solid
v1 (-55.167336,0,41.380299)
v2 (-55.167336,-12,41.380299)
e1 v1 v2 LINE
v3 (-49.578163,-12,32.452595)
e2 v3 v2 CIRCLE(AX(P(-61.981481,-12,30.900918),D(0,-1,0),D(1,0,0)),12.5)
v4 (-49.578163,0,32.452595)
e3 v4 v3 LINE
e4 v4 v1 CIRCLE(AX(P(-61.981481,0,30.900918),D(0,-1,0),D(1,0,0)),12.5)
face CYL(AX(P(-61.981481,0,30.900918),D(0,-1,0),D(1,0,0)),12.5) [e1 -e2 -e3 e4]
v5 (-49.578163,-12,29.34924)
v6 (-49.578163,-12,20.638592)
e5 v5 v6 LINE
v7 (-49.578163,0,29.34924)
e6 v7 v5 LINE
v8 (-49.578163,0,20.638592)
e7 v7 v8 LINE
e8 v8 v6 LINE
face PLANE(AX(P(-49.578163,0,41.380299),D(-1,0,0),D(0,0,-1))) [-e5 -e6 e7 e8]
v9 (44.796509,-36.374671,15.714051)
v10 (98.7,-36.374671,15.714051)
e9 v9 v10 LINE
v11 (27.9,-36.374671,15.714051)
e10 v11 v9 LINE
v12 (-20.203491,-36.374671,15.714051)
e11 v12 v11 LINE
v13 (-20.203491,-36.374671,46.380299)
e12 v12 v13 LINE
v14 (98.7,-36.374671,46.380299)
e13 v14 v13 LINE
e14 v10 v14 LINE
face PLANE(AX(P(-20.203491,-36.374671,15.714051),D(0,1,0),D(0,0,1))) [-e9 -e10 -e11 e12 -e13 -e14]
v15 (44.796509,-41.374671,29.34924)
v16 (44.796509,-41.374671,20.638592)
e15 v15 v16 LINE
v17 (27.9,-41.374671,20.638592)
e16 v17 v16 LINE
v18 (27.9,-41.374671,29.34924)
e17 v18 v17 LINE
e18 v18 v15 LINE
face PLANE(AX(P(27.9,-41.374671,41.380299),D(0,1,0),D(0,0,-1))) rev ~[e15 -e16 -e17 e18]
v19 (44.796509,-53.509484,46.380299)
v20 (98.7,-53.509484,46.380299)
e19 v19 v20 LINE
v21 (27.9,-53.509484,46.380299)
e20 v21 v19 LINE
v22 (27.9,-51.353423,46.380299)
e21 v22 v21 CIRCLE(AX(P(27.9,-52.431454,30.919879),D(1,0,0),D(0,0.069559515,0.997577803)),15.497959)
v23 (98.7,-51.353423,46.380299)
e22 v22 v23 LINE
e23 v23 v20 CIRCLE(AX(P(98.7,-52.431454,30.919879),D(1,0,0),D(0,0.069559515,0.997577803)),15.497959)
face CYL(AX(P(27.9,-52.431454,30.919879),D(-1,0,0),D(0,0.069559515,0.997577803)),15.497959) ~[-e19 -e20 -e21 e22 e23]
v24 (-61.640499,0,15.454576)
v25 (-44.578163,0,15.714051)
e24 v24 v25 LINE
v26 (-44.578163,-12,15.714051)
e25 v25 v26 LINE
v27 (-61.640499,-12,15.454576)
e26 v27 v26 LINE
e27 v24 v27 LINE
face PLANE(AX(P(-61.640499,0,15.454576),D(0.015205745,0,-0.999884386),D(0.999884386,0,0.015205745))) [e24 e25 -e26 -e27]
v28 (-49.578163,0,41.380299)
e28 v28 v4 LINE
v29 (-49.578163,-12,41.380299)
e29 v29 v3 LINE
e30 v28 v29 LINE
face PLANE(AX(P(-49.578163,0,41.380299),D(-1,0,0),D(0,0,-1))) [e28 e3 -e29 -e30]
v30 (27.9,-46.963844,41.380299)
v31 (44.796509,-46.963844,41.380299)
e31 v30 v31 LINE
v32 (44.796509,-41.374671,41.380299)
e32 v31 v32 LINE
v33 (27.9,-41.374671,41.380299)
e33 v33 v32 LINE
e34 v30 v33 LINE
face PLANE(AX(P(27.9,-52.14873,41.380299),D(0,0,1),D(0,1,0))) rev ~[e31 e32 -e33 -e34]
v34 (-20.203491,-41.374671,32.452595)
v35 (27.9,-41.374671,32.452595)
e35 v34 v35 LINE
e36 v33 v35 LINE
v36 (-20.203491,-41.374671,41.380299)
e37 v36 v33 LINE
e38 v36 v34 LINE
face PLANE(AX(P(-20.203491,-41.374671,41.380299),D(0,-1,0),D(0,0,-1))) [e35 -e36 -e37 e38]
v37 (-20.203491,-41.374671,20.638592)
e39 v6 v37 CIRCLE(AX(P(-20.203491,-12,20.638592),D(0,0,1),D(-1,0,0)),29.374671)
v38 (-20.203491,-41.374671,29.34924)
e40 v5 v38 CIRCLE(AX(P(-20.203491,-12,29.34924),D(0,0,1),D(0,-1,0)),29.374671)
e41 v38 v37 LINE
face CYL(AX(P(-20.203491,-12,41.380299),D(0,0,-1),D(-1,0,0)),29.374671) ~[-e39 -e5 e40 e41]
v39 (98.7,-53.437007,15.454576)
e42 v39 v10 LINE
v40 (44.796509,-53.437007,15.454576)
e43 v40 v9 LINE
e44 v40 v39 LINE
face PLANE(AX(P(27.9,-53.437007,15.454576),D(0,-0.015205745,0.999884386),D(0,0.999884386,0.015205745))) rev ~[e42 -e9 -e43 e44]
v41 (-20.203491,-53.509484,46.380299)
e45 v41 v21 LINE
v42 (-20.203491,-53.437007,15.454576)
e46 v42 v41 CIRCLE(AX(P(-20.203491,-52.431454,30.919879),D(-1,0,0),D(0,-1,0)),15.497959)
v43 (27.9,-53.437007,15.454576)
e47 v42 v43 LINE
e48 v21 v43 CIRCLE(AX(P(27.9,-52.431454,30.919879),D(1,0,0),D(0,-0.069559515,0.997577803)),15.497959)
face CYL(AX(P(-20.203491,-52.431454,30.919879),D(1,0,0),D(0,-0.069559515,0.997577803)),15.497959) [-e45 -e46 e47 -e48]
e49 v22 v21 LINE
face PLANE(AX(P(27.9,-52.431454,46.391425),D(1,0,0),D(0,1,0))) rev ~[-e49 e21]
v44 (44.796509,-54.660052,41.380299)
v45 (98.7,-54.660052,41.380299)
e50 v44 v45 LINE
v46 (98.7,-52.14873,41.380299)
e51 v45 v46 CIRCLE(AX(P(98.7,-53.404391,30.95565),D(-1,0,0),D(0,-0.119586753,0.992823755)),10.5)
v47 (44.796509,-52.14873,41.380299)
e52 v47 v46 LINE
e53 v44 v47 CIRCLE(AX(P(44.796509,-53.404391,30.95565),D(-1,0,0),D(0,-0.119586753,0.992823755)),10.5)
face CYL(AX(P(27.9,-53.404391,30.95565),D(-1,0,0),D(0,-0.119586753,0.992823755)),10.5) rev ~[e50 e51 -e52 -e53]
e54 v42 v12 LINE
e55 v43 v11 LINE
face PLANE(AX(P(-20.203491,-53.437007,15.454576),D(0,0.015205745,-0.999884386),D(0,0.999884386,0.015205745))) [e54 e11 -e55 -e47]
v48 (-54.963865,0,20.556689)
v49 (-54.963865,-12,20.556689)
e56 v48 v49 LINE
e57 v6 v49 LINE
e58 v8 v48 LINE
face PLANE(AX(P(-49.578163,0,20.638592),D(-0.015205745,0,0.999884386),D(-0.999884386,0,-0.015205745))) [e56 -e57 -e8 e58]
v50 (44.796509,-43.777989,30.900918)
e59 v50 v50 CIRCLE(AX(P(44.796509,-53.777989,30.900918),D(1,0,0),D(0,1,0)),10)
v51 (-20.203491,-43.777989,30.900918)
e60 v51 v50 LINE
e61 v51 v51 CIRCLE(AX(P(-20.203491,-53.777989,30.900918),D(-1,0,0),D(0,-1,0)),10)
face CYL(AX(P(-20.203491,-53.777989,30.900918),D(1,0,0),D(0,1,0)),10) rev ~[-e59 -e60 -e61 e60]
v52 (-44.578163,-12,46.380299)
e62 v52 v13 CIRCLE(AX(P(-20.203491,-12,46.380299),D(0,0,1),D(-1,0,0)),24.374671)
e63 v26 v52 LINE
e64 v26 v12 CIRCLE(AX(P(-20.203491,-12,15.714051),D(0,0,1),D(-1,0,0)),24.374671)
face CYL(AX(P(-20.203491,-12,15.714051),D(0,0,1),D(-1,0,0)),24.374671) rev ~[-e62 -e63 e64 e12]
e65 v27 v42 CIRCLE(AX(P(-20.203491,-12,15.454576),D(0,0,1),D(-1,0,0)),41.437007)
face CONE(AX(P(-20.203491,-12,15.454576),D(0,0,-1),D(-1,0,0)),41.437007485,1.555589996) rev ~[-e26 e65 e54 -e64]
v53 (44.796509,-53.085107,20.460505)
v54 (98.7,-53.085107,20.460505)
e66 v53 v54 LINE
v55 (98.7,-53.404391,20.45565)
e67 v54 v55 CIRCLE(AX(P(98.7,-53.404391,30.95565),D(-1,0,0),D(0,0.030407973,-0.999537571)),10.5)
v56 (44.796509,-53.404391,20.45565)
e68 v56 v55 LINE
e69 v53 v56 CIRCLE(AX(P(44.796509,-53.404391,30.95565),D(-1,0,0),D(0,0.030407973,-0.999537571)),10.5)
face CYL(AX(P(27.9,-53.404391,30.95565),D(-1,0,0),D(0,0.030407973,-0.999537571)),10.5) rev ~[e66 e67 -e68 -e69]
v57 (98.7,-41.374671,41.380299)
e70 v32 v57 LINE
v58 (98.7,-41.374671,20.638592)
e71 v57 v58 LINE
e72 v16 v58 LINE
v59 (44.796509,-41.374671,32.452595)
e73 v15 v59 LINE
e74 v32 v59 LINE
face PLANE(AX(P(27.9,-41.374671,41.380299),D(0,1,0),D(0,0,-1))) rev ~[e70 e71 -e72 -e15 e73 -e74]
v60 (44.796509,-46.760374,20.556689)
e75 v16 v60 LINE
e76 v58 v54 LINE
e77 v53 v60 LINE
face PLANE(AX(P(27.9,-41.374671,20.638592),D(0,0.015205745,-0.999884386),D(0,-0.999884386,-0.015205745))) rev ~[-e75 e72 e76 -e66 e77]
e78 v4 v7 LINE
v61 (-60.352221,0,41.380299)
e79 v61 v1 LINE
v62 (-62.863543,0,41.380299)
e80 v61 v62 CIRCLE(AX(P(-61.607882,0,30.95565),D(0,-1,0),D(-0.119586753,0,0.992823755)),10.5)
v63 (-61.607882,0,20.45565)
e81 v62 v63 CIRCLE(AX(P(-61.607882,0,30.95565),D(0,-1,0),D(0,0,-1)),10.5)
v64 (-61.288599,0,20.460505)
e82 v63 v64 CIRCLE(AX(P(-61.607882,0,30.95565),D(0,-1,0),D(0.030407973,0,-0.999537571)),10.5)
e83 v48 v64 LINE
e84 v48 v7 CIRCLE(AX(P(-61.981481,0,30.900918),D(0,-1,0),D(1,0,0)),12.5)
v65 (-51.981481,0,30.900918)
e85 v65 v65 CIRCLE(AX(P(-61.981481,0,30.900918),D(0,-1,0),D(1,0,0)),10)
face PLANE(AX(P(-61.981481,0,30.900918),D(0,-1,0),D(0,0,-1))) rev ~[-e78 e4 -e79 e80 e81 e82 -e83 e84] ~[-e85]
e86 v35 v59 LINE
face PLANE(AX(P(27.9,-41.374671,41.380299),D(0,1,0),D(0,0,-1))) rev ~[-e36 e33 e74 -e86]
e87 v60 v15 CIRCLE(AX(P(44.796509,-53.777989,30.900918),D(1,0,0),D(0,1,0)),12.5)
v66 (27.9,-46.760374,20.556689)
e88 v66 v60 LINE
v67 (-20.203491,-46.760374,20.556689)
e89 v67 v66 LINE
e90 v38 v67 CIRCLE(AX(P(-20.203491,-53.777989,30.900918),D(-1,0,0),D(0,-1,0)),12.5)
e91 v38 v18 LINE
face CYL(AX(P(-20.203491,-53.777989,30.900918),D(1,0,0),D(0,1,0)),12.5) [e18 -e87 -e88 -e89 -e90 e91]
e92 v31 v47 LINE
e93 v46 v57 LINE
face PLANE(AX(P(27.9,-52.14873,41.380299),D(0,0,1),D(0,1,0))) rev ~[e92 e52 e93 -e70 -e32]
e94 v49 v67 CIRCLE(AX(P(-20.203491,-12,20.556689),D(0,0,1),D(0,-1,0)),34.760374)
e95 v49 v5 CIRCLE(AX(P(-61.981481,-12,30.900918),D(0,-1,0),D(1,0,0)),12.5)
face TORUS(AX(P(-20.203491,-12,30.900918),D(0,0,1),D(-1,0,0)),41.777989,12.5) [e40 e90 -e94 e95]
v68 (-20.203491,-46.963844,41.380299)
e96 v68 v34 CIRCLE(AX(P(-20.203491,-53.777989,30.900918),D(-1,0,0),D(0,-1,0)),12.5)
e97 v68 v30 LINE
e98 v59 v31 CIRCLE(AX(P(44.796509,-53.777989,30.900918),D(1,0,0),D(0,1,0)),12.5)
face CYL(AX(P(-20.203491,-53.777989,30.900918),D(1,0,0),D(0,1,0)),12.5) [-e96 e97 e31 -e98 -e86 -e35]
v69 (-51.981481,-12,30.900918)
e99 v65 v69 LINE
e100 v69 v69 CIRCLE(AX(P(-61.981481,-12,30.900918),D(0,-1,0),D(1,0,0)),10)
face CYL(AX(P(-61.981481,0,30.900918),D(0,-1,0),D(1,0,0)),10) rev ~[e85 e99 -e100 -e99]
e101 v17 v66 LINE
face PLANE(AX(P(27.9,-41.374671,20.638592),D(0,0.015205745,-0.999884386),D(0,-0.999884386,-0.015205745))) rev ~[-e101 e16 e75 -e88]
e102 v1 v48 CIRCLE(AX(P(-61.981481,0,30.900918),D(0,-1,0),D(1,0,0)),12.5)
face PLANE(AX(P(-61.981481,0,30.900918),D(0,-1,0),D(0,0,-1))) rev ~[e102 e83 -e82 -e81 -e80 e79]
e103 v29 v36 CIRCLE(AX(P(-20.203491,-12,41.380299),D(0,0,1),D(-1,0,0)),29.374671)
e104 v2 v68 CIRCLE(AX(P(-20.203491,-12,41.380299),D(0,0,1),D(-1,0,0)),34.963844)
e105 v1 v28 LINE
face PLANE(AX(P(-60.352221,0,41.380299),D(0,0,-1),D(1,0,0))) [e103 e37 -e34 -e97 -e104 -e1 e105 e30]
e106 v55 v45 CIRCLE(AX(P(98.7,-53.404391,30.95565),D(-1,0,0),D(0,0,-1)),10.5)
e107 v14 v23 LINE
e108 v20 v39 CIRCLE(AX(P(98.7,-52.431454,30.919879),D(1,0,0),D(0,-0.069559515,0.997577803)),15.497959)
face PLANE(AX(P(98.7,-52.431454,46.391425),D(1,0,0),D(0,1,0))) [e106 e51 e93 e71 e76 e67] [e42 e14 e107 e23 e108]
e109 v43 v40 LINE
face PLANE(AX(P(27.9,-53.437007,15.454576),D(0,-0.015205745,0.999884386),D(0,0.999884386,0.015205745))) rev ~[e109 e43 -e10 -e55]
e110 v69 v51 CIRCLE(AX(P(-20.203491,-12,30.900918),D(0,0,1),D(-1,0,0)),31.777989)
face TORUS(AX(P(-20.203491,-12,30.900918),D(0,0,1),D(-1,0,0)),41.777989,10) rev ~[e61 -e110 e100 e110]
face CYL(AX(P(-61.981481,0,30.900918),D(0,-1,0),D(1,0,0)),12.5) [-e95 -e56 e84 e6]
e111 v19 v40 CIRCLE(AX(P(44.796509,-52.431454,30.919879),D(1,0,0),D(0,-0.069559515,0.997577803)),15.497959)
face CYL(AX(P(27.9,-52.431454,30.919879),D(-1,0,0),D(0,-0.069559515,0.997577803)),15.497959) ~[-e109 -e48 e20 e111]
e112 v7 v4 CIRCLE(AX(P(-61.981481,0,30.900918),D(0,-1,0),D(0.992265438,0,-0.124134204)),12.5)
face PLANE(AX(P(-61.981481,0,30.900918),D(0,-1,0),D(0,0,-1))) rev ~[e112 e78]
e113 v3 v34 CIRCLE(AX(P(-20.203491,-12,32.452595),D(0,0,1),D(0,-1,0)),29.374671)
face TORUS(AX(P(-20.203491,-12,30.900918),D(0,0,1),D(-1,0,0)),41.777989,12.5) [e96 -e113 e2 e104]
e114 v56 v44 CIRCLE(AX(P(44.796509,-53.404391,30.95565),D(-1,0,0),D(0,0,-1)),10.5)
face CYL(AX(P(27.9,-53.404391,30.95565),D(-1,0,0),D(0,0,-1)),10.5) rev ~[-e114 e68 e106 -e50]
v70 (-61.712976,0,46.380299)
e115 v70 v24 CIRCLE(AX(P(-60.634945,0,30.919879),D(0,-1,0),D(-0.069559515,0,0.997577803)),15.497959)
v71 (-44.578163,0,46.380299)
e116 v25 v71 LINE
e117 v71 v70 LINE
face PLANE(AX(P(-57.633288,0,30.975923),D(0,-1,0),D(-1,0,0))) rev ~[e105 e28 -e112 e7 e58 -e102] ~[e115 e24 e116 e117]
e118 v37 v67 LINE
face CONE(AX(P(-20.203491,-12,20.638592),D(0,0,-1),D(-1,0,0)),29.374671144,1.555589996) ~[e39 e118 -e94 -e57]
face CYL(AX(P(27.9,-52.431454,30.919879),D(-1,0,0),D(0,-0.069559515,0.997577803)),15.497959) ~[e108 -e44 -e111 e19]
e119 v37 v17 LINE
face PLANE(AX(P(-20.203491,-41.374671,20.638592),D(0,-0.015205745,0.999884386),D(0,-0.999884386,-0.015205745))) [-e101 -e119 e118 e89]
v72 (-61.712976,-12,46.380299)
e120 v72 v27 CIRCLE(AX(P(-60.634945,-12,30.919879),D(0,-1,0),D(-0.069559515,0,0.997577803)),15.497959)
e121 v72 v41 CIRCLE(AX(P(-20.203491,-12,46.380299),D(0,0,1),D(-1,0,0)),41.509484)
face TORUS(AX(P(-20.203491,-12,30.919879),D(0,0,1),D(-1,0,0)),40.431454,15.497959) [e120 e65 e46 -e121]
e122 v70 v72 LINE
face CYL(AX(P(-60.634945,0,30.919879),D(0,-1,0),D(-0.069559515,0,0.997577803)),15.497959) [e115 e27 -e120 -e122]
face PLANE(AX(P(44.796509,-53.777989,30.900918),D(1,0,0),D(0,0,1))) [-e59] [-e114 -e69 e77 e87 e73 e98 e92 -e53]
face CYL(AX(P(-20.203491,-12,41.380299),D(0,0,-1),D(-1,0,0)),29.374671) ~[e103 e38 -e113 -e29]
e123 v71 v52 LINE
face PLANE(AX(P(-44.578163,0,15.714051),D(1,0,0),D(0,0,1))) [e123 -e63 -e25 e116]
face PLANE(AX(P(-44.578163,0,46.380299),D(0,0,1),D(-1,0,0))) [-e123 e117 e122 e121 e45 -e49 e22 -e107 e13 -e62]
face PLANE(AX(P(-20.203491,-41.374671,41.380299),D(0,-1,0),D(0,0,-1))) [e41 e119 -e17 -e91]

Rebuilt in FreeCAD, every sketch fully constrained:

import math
import FreeCAD as App
import Part
import Sketcher

V = App.Vector


def faces_at(feature, points):
    """Names of the faces that lie closest to the given points."""
    faces = feature.Shape.Faces
    near = lambda p: min(range(len(faces)), key=lambda i: faces[i].distToShape(Part.Vertex(*p))[0])
    return sorted({f"Face{near(p) + 1}" for p in points})

doc = App.newDocument("Part")
body = doc.addObject("PartDesign::Body", "Body")

sketch1 = doc.addObject("Sketcher::SketchObject", "Sketch")
body.addObject(sketch1)
sketch1.AttachmentSupport = (doc.XZ_Plane, [""])
sketch1.MapMode = "FlatFace"
sketch1.addGeometry(Part.Circle(V(-62, 31, 0), V(0, 0, 1), 12), False)
sketch1.addConstraint(Sketcher.Constraint("Diameter", 0, 25.0))
sketch1.addConstraint(Sketcher.Constraint("DistanceX", 0, 3, -1, 1, 61.981481))
sketch1.addConstraint(Sketcher.Constraint("DistanceY", -1, 1, 0, 3, 30.900918))

sketch2 = doc.addObject("Sketcher::SketchObject", "Sketch001")
body.addObject(sketch2)
sketch2.AttachmentSupport = (doc.XY_Plane, [""])
sketch2.MapMode = "FlatFace"
sketch2.addGeometry(Part.LineSegment(V(-30, 0, 0), V(-30, -12, 0)), False)
sketch2.addGeometry(Part.ArcOfCircle(Part.Circle(V(-20, -12, 0), V(0, 0, 1), 10), math.radians(180), math.radians(270)), False)
sketch2.addGeometry(Part.LineSegment(V(-20, -22, 0), V(45, -22, 0)), False)
sketch2.addConstraint(Sketcher.Constraint("Tangent", 0, 2, 1, 1))
sketch2.addConstraint(Sketcher.Constraint("Tangent", 1, 2, 2, 1))
sketch2.addConstraint(Sketcher.Constraint("Vertical", 0))
sketch2.addConstraint(Sketcher.Constraint("Horizontal", 2))
sketch2.addConstraint(Sketcher.Constraint("PointOnObject", 0, 1, -1))
sketch2.addConstraint(Sketcher.Constraint("Radius", 1, 10.0))
sketch2.addConstraint(Sketcher.Constraint("DistanceX", 2, 1, 2, 2, 65.0))
sketch2.addConstraint(Sketcher.Constraint("DistanceY", 0, 2, 0, 1, 12.0))
sketch2.addConstraint(Sketcher.Constraint("DistanceX", 1, 3, -1, 1, 20.203491))
doc.recompute()

additivepipe = doc.addObject("PartDesign::AdditivePipe", "AdditivePipe")
body.addObject(additivepipe)
additivepipe.Profile = sketch1
additivepipe.Spine = (sketch2, ["Edge1", "Edge2", "Edge3"])
doc.recompute()

thickness = doc.addObject("PartDesign::Thickness", "Thickness")
body.addObject(thickness)
thickness.Base = (additivepipe, faces_at(additivepipe, [(44.797, -53.778, 30.901), (-61.981, 0, 30.901)]))
thickness.Value = 2.5
thickness.Reversed = True
thickness.Join = "Arc"

sketch3 = doc.addObject("Sketcher::SketchObject", "Sketch002")
body.addObject(sketch3)
sketch3.AttachmentSupport = (doc.YZ_Plane, [""])
sketch3.MapMode = "FlatFace"
sketch3.AttachmentOffset = App.Placement(V(0, 0, 27.9), App.Rotation())
sketch3.addGeometry(Part.ArcOfCircle(Part.Circle(V(-52.43, 30.92, 0), V(0, 0, 1), 15.5), math.radians(86.01), math.radians(93.99)), False)
sketch3.addGeometry(Part.ArcOfCircle(Part.Circle(V(-52.43, 30.92, 0), V(0, 0, 1), 15.5), math.radians(94), math.radians(266)), False)
sketch3.addGeometry(Part.LineSegment(V(-53.44, 15.45, 0), V(-36.37, 15.71, 0)), False)
sketch3.addGeometry(Part.LineSegment(V(-36.37, 15.71, 0), V(-36.37, 46.38, 0)), False)
sketch3.addGeometry(Part.LineSegment(V(-36.37, 46.38, 0), V(-51.35, 46.38, 0)), False)
sketch3.addGeometry(Part.ArcOfCircle(Part.Circle(V(-53.4, 30.96, 0), V(0, 0, 1), 10.5), math.radians(97), math.radians(270)), False)
sketch3.addGeometry(Part.ArcOfCircle(Part.Circle(V(-53.4, 30.96, 0), V(0, 0, 1), 10.5), math.radians(83.13), math.radians(96.87)), False)
sketch3.addGeometry(Part.LineSegment(V(-52.15, 41.38, 0), V(-41.37, 41.38, 0)), False)
sketch3.addGeometry(Part.LineSegment(V(-41.37, 41.38, 0), V(-41.37, 20.64, 0)), False)
sketch3.addGeometry(Part.LineSegment(V(-41.37, 20.64, 0), V(-53.09, 20.46, 0)), False)
sketch3.addGeometry(Part.ArcOfCircle(Part.Circle(V(-53.4, 30.96, 0), V(0, 0, 1), 10.5), math.radians(-90), math.radians(-88.26)), False)
sketch3.addConstraint(Sketcher.Constraint("Tangent", 0, 2, 1, 1))
sketch3.addConstraint(Sketcher.Constraint("Coincident", 1, 2, 2, 1))
sketch3.addConstraint(Sketcher.Constraint("Coincident", 2, 2, 3, 1))
sketch3.addConstraint(Sketcher.Constraint("Coincident", 3, 2, 4, 1))
sketch3.addConstraint(Sketcher.Constraint("Coincident", 4, 2, 0, 1))
sketch3.addConstraint(Sketcher.Constraint("Tangent", 5, 1, 6, 2))
sketch3.addConstraint(Sketcher.Constraint("Coincident", 6, 1, 7, 1))
sketch3.addConstraint(Sketcher.Constraint("Coincident", 7, 2, 8, 1))
sketch3.addConstraint(Sketcher.Constraint("Coincident", 8, 2, 9, 1))
sketch3.addConstraint(Sketcher.Constraint("Coincident", 9, 2, 10, 2))
sketch3.addConstraint(Sketcher.Constraint("Tangent", 10, 1, 5, 2))
sketch3.addConstraint(Sketcher.Constraint("Vertical", 3))
sketch3.addConstraint(Sketcher.Constraint("Horizontal", 4))
sketch3.addConstraint(Sketcher.Constraint("Horizontal", 7))
sketch3.addConstraint(Sketcher.Constraint("Vertical", 8))
sketch3.addConstraint(Sketcher.Constraint("Equal", 0, 1))
sketch3.addConstraint(Sketcher.Constraint("Equal", 5, 6))
sketch3.addConstraint(Sketcher.Constraint("Equal", 6, 10))
sketch3.addConstraint(Sketcher.Constraint("Parallel", 2, 9))
sketch3.addConstraint(Sketcher.Constraint("Horizontal", 0, 2, 3, 2))
sketch3.addConstraint(Sketcher.Constraint("Horizontal", 5, 1, 6, 1))
sketch3.addConstraint(Sketcher.Constraint("Vertical", 6, 3, 10, 1))
sketch3.addConstraint(Sketcher.Constraint("Radius", 5, 10.5))
sketch3.addConstraint(Sketcher.Constraint("DistanceY", 5, 1, 0, 2, 5.0))
sketch3.addConstraint(Sketcher.Constraint("DistanceX", 7, 2, 3, 2, 5.0))
sketch3.addConstraint(Sketcher.Constraint("Radius", 0, 15.497959))
sketch3.addConstraint(Sketcher.Constraint("DistanceX", 4, 2, 4, 1, 14.978752))
sketch3.addConstraint(Sketcher.Constraint("DistanceX", 7, 1, 7, 2, 10.774059))
sketch3.addConstraint(Sketcher.Constraint("DistanceY", 3, 1, 3, 2, 30.666248))
sketch3.addConstraint(Sketcher.Constraint("DistanceY", -1, 1, 0, 2, 46.380299))
sketch3.addConstraint(Sketcher.Constraint("DistanceY", 2, 2, 10, 3, 15.241598))
sketch3.addConstraint(Sketcher.Constraint("DistanceX", 1, 2, 9, 2, 0.3519))
sketch3.addConstraint(Sketcher.Constraint("Distance", 2, 17.064309))
sketch3.addConstraint(Sketcher.Constraint("DistanceY", -1, 1, 0, 3, 30.919879))
sketch3.addConstraint(Sketcher.Constraint("DistanceX", 5, 3, -1, 1, 53.404391))
pad1 = doc.addObject("PartDesign::Pad", "Pad")
body.addObject(pad1)
pad1.Profile = sketch3
pad1.Length = 70.8

sketch4 = doc.addObject("Sketcher::SketchObject", "Sketch003")
body.addObject(sketch4)
sketch4.AttachmentSupport = (doc.YZ_Plane, [""])
sketch4.MapMode = "FlatFace"
sketch4.addGeometry(Part.LineSegment(V(-36.37, 46.38, 0), V(-53.51, 46.38, 0)), False)
sketch4.addGeometry(Part.ArcOfCircle(Part.Circle(V(-52.43, 30.92, 0), V(0, 0, 1), 15.5), math.radians(94), math.radians(266)), False)
sketch4.addGeometry(Part.LineSegment(V(-53.44, 15.45, 0), V(-36.37, 15.71, 0)), False)
sketch4.addGeometry(Part.LineSegment(V(-36.37, 15.71, 0), V(-36.37, 46.38, 0)), False)
sketch4.addGeometry(Part.ArcOfCircle(Part.Circle(V(-53.4, 30.96, 0), V(0, 0, 1), 10.5), math.radians(97), math.radians(270)), False)
sketch4.addGeometry(Part.ArcOfCircle(Part.Circle(V(-53.4, 30.96, 0), V(0, 0, 1), 10.5), math.radians(83.13), math.radians(96.87)), False)
sketch4.addGeometry(Part.LineSegment(V(-52.15, 41.38, 0), V(-41.37, 41.38, 0)), False)
sketch4.addGeometry(Part.LineSegment(V(-41.37, 41.38, 0), V(-41.37, 20.64, 0)), False)
sketch4.addGeometry(Part.LineSegment(V(-41.37, 20.64, 0), V(-53.09, 20.46, 0)), False)
sketch4.addGeometry(Part.ArcOfCircle(Part.Circle(V(-53.4, 30.96, 0), V(0, 0, 1), 10.5), math.radians(-90), math.radians(-88.26)), False)
sketch4.addConstraint(Sketcher.Constraint("Coincident", 0, 2, 1, 1))
sketch4.addConstraint(Sketcher.Constraint("Coincident", 1, 2, 2, 1))
sketch4.addConstraint(Sketcher.Constraint("Coincident", 2, 2, 3, 1))
sketch4.addConstraint(Sketcher.Constraint("Coincident", 3, 2, 0, 1))
sketch4.addConstraint(Sketcher.Constraint("Tangent", 4, 1, 5, 2))
sketch4.addConstraint(Sketcher.Constraint("Coincident", 5, 1, 6, 1))
sketch4.addConstraint(Sketcher.Constraint("Coincident", 6, 2, 7, 1))
sketch4.addConstraint(Sketcher.Constraint("Coincident", 7, 2, 8, 1))
sketch4.addConstraint(Sketcher.Constraint("Coincident", 8, 2, 9, 2))
sketch4.addConstraint(Sketcher.Constraint("Tangent", 9, 1, 4, 2))
sketch4.addConstraint(Sketcher.Constraint("Horizontal", 0))
sketch4.addConstraint(Sketcher.Constraint("Vertical", 3))
sketch4.addConstraint(Sketcher.Constraint("Horizontal", 6))
sketch4.addConstraint(Sketcher.Constraint("Vertical", 7))
sketch4.addConstraint(Sketcher.Constraint("Equal", 4, 5))
sketch4.addConstraint(Sketcher.Constraint("Equal", 5, 9))
sketch4.addConstraint(Sketcher.Constraint("Parallel", 2, 8))
sketch4.addConstraint(Sketcher.Constraint("Horizontal", 4, 1, 5, 1))
sketch4.addConstraint(Sketcher.Constraint("Vertical", 5, 3, 9, 1))
sketch4.addConstraint(Sketcher.Constraint("Radius", 4, 10.5))
sketch4.addConstraint(Sketcher.Constraint("DistanceY", 4, 1, 0, 2, 5.0))
sketch4.addConstraint(Sketcher.Constraint("DistanceX", 6, 2, 3, 2, 5.0))
sketch4.addConstraint(Sketcher.Constraint("Radius", 1, 15.497959))
sketch4.addConstraint(Sketcher.Constraint("DistanceX", 6, 1, 6, 2, 10.774059))
sketch4.addConstraint(Sketcher.Constraint("DistanceY", 3, 1, 3, 2, 30.666248))
sketch4.addConstraint(Sketcher.Constraint("DistanceY", -1, 1, 0, 2, 46.380299))
sketch4.addConstraint(Sketcher.Constraint("DistanceY", 2, 2, 9, 3, 15.241598))
sketch4.addConstraint(Sketcher.Constraint("DistanceX", 4, 1, 1, 3, 2.228598))
sketch4.addConstraint(Sketcher.Constraint("DistanceX", 1, 2, 8, 2, 0.3519))
sketch4.addConstraint(Sketcher.Constraint("Distance", 2, 17.064309))
sketch4.addConstraint(Sketcher.Constraint("DistanceX", 0, 2, 0, 1, 17.134813))
sketch4.addConstraint(Sketcher.Constraint("DistanceX", 4, 3, -1, 1, 53.404391))

sketch5 = doc.addObject("Sketcher::SketchObject", "Sketch004")
body.addObject(sketch5)
sketch5.AttachmentSupport = (doc.XY_Plane, [""])
sketch5.MapMode = "FlatFace"
sketch5.addGeometry(Part.LineSegment(V(-30, 0, 0), V(-30, -12, 0)), False)
sketch5.addGeometry(Part.ArcOfCircle(Part.Circle(V(-20, -12, 0), V(0, 0, 1), 10), math.radians(180), math.radians(270)), False)
sketch5.addGeometry(Part.LineSegment(V(-20, -22, 0), V(45, -22, 0)), False)
sketch5.addConstraint(Sketcher.Constraint("Tangent", 0, 2, 1, 1))
sketch5.addConstraint(Sketcher.Constraint("Tangent", 1, 2, 2, 1))
sketch5.addConstraint(Sketcher.Constraint("Vertical", 0))
sketch5.addConstraint(Sketcher.Constraint("Horizontal", 2))
sketch5.addConstraint(Sketcher.Constraint("PointOnObject", 0, 1, -1))
sketch5.addConstraint(Sketcher.Constraint("Radius", 1, 10.0))
sketch5.addConstraint(Sketcher.Constraint("DistanceX", 2, 1, 2, 2, 65.0))
sketch5.addConstraint(Sketcher.Constraint("DistanceY", 0, 2, 0, 1, 12.0))
sketch5.addConstraint(Sketcher.Constraint("DistanceX", 1, 3, -1, 1, 20.203491))
doc.recompute()

additivepipe2 = doc.addObject("PartDesign::AdditivePipe", "AdditivePipe001")
body.addObject(additivepipe2)
additivepipe2.Profile = sketch4
additivepipe2.Spine = (sketch5, ["Edge1", "Edge2", "Edge3"])

doc.recompute()
